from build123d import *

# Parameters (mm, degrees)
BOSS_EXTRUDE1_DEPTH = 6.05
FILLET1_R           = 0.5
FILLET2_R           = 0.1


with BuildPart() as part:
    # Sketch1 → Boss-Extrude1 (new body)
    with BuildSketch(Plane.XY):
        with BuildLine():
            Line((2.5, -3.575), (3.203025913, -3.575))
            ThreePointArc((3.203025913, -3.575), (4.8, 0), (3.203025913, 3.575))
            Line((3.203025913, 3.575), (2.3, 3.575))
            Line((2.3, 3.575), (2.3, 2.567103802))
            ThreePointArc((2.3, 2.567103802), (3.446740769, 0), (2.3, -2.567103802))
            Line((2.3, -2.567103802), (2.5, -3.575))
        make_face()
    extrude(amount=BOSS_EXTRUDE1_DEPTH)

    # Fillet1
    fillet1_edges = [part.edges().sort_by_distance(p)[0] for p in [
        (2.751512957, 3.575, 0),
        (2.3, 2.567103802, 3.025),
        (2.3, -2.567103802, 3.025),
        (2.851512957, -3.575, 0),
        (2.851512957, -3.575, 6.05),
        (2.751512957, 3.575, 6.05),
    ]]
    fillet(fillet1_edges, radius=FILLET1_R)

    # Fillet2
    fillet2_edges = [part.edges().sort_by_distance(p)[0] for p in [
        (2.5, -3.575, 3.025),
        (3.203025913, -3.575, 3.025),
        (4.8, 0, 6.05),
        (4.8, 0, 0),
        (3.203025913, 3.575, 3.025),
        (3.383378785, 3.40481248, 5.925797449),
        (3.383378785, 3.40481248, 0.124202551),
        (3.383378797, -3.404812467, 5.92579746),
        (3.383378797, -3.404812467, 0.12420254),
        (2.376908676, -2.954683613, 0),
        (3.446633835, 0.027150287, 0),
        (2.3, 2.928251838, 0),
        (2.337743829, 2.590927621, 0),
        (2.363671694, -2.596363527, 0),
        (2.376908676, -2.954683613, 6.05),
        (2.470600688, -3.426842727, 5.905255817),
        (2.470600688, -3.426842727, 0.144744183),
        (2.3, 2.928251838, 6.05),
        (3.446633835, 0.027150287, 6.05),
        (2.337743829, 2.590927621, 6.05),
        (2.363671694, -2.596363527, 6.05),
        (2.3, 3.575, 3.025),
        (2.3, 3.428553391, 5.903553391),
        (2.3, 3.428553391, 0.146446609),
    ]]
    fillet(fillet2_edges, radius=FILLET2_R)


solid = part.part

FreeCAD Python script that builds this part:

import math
import FreeCAD as App
import Part
import Sketcher
from FreeCAD import Vector
Q = App.Units.Quantity


def edges_at(feature, points):
    """Names of the edges that pass closest to the given points."""
    edges = feature.Shape.Edges
    near = lambda p: min(range(len(edges)), key=lambda i: edges[i].distToShape(Part.Vertex(*p))[0])
    return sorted({f"Edge{near(p) + 1}" for p in points})

doc = App.newDocument("Part")
body = doc.addObject("PartDesign::Body", "Body")

# Sketch on XY plane
sketch1 = body.newObject("Sketcher::SketchObject", "Sketch")
sketch1.AttachmentSupport = (doc.getObject("XY_Plane"), [""])
sketch1.MapMode = "FlatFace"
sketch1.addGeometry(Part.LineSegment(Vector(2.5, -3.6, 0), Vector(3.2, -3.6, 0)), False)
sketch1.addGeometry(Part.ArcOfCircle(Part.Circle(Vector(0, 0, 0), Vector(0, 0, 1), 4.8), math.radians(-48), math.radians(48)), False)
sketch1.addGeometry(Part.LineSegment(Vector(3.2, 3.6, 0), Vector(2.3, 3.6, 0)), False)
sketch1.addGeometry(Part.LineSegment(Vector(2.3, 3.6, 0), Vector(2.3, 2.6, 0)), False)
sketch1.addGeometry(Part.ArcOfCircle(Part.Circle(Vector(0, 0, 0), Vector(0, 0, 1), 3.4), math.radians(-48), math.radians(48)), False)
sketch1.addGeometry(Part.LineSegment(Vector(2.3, -2.6, 0), Vector(2.5, -3.6, 0)), False)
sketch1.addConstraint(Sketcher.Constraint("Coincident", 0, 2, 1, 1))
sketch1.addConstraint(Sketcher.Constraint("Coincident", 1, 2, 2, 1))
sketch1.addConstraint(Sketcher.Constraint("Coincident", 2, 2, 3, 1))
sketch1.addConstraint(Sketcher.Constraint("Coincident", 3, 2, 4, 2))
sketch1.addConstraint(Sketcher.Constraint("Coincident", 4, 1, 5, 1))
sketch1.addConstraint(Sketcher.Constraint("Coincident", 5, 2, 0, 1))
sketch1.addConstraint(Sketcher.Constraint("Horizontal", 0))
sketch1.addConstraint(Sketcher.Constraint("Horizontal", 2))
sketch1.addConstraint(Sketcher.Constraint("Vertical", 3))
sketch1.addConstraint(Sketcher.Constraint("Coincident", 1, 3, -1, 1))
sketch1.addConstraint(Sketcher.Constraint("Coincident", 4, 3, -1, 1))
sketch1.addConstraint(Sketcher.Constraint("Vertical", 0, 2, 1, 2))
sketch1.addConstraint(Sketcher.Constraint("Vertical", 3, 2, 4, 1))
sketch1.addConstraint(Sketcher.Constraint("Radius", 1, Q("4.8 mm")))
sketch1.addConstraint(Sketcher.Constraint("DistanceX", -1, 1, 2, 2, Q("2.3 mm")))
sketch1.addConstraint(Sketcher.Constraint("DistanceX", -1, 1, 5, 2, Q("2.5 mm")))
sketch1.addConstraint(Sketcher.Constraint("Radius", 4, Q("3.446741 mm")))
sketch1.addConstraint(Sketcher.Constraint("DistanceY", 0, 2, 1, 2, Q("7.15 mm")))
pad1 = body.newObject("PartDesign::Pad", "Pad")
pad1.Profile = sketch1
pad1.Length = 6.05
doc.recompute()

fillet = body.newObject("PartDesign::Fillet", "Fillet")
fillet.Base = (pad1, edges_at(pad1, [
    (2.752, 3.575, 0),
    (2.3, 2.567, 3.025),
    (2.3, -2.567, 3.025),
    (2.852, -3.575, 0),
    (2.852, -3.575, 6.05),
    (2.752, 3.575, 6.05),
]))
fillet.Radius = 0.5
doc.recompute()

fillet2 = body.newObject("PartDesign::Fillet", "Fillet001")
fillet2.Base = (fillet, edges_at(fillet, [
    (2.5, -3.575, 3.025),
    (3.203, -3.575, 3.025),
    (4.8, 0, 6.05),
    (4.8, 0, 0),
    (3.203, 3.575, 3.025),
    (3.383, 3.405, 5.926),
    (3.383, 3.405, 0.124),
    (3.383, -3.405, 5.926),
    (3.383, -3.405, 0.124),
    (2.377, -2.955, 0),
    (3.447, 0.027, 0),
    (2.3, 2.928, 0),
    (2.338, 2.591, 0),
    (2.364, -2.596, 0),
    (2.377, -2.955, 6.05),
    (2.471, -3.427, 5.905),
    (2.471, -3.427, 0.145),
    (2.3, 2.928, 6.05),
    (3.447, 0.027, 6.05),
    (2.338, 2.591, 6.05),
    (2.364, -2.596, 6.05),
    (2.3, 3.575, 3.025),
    (2.3, 3.429, 5.904),
    (2.3, 3.429, 0.146),
]))
fillet2.Radius = 0.1

doc.recompute()
